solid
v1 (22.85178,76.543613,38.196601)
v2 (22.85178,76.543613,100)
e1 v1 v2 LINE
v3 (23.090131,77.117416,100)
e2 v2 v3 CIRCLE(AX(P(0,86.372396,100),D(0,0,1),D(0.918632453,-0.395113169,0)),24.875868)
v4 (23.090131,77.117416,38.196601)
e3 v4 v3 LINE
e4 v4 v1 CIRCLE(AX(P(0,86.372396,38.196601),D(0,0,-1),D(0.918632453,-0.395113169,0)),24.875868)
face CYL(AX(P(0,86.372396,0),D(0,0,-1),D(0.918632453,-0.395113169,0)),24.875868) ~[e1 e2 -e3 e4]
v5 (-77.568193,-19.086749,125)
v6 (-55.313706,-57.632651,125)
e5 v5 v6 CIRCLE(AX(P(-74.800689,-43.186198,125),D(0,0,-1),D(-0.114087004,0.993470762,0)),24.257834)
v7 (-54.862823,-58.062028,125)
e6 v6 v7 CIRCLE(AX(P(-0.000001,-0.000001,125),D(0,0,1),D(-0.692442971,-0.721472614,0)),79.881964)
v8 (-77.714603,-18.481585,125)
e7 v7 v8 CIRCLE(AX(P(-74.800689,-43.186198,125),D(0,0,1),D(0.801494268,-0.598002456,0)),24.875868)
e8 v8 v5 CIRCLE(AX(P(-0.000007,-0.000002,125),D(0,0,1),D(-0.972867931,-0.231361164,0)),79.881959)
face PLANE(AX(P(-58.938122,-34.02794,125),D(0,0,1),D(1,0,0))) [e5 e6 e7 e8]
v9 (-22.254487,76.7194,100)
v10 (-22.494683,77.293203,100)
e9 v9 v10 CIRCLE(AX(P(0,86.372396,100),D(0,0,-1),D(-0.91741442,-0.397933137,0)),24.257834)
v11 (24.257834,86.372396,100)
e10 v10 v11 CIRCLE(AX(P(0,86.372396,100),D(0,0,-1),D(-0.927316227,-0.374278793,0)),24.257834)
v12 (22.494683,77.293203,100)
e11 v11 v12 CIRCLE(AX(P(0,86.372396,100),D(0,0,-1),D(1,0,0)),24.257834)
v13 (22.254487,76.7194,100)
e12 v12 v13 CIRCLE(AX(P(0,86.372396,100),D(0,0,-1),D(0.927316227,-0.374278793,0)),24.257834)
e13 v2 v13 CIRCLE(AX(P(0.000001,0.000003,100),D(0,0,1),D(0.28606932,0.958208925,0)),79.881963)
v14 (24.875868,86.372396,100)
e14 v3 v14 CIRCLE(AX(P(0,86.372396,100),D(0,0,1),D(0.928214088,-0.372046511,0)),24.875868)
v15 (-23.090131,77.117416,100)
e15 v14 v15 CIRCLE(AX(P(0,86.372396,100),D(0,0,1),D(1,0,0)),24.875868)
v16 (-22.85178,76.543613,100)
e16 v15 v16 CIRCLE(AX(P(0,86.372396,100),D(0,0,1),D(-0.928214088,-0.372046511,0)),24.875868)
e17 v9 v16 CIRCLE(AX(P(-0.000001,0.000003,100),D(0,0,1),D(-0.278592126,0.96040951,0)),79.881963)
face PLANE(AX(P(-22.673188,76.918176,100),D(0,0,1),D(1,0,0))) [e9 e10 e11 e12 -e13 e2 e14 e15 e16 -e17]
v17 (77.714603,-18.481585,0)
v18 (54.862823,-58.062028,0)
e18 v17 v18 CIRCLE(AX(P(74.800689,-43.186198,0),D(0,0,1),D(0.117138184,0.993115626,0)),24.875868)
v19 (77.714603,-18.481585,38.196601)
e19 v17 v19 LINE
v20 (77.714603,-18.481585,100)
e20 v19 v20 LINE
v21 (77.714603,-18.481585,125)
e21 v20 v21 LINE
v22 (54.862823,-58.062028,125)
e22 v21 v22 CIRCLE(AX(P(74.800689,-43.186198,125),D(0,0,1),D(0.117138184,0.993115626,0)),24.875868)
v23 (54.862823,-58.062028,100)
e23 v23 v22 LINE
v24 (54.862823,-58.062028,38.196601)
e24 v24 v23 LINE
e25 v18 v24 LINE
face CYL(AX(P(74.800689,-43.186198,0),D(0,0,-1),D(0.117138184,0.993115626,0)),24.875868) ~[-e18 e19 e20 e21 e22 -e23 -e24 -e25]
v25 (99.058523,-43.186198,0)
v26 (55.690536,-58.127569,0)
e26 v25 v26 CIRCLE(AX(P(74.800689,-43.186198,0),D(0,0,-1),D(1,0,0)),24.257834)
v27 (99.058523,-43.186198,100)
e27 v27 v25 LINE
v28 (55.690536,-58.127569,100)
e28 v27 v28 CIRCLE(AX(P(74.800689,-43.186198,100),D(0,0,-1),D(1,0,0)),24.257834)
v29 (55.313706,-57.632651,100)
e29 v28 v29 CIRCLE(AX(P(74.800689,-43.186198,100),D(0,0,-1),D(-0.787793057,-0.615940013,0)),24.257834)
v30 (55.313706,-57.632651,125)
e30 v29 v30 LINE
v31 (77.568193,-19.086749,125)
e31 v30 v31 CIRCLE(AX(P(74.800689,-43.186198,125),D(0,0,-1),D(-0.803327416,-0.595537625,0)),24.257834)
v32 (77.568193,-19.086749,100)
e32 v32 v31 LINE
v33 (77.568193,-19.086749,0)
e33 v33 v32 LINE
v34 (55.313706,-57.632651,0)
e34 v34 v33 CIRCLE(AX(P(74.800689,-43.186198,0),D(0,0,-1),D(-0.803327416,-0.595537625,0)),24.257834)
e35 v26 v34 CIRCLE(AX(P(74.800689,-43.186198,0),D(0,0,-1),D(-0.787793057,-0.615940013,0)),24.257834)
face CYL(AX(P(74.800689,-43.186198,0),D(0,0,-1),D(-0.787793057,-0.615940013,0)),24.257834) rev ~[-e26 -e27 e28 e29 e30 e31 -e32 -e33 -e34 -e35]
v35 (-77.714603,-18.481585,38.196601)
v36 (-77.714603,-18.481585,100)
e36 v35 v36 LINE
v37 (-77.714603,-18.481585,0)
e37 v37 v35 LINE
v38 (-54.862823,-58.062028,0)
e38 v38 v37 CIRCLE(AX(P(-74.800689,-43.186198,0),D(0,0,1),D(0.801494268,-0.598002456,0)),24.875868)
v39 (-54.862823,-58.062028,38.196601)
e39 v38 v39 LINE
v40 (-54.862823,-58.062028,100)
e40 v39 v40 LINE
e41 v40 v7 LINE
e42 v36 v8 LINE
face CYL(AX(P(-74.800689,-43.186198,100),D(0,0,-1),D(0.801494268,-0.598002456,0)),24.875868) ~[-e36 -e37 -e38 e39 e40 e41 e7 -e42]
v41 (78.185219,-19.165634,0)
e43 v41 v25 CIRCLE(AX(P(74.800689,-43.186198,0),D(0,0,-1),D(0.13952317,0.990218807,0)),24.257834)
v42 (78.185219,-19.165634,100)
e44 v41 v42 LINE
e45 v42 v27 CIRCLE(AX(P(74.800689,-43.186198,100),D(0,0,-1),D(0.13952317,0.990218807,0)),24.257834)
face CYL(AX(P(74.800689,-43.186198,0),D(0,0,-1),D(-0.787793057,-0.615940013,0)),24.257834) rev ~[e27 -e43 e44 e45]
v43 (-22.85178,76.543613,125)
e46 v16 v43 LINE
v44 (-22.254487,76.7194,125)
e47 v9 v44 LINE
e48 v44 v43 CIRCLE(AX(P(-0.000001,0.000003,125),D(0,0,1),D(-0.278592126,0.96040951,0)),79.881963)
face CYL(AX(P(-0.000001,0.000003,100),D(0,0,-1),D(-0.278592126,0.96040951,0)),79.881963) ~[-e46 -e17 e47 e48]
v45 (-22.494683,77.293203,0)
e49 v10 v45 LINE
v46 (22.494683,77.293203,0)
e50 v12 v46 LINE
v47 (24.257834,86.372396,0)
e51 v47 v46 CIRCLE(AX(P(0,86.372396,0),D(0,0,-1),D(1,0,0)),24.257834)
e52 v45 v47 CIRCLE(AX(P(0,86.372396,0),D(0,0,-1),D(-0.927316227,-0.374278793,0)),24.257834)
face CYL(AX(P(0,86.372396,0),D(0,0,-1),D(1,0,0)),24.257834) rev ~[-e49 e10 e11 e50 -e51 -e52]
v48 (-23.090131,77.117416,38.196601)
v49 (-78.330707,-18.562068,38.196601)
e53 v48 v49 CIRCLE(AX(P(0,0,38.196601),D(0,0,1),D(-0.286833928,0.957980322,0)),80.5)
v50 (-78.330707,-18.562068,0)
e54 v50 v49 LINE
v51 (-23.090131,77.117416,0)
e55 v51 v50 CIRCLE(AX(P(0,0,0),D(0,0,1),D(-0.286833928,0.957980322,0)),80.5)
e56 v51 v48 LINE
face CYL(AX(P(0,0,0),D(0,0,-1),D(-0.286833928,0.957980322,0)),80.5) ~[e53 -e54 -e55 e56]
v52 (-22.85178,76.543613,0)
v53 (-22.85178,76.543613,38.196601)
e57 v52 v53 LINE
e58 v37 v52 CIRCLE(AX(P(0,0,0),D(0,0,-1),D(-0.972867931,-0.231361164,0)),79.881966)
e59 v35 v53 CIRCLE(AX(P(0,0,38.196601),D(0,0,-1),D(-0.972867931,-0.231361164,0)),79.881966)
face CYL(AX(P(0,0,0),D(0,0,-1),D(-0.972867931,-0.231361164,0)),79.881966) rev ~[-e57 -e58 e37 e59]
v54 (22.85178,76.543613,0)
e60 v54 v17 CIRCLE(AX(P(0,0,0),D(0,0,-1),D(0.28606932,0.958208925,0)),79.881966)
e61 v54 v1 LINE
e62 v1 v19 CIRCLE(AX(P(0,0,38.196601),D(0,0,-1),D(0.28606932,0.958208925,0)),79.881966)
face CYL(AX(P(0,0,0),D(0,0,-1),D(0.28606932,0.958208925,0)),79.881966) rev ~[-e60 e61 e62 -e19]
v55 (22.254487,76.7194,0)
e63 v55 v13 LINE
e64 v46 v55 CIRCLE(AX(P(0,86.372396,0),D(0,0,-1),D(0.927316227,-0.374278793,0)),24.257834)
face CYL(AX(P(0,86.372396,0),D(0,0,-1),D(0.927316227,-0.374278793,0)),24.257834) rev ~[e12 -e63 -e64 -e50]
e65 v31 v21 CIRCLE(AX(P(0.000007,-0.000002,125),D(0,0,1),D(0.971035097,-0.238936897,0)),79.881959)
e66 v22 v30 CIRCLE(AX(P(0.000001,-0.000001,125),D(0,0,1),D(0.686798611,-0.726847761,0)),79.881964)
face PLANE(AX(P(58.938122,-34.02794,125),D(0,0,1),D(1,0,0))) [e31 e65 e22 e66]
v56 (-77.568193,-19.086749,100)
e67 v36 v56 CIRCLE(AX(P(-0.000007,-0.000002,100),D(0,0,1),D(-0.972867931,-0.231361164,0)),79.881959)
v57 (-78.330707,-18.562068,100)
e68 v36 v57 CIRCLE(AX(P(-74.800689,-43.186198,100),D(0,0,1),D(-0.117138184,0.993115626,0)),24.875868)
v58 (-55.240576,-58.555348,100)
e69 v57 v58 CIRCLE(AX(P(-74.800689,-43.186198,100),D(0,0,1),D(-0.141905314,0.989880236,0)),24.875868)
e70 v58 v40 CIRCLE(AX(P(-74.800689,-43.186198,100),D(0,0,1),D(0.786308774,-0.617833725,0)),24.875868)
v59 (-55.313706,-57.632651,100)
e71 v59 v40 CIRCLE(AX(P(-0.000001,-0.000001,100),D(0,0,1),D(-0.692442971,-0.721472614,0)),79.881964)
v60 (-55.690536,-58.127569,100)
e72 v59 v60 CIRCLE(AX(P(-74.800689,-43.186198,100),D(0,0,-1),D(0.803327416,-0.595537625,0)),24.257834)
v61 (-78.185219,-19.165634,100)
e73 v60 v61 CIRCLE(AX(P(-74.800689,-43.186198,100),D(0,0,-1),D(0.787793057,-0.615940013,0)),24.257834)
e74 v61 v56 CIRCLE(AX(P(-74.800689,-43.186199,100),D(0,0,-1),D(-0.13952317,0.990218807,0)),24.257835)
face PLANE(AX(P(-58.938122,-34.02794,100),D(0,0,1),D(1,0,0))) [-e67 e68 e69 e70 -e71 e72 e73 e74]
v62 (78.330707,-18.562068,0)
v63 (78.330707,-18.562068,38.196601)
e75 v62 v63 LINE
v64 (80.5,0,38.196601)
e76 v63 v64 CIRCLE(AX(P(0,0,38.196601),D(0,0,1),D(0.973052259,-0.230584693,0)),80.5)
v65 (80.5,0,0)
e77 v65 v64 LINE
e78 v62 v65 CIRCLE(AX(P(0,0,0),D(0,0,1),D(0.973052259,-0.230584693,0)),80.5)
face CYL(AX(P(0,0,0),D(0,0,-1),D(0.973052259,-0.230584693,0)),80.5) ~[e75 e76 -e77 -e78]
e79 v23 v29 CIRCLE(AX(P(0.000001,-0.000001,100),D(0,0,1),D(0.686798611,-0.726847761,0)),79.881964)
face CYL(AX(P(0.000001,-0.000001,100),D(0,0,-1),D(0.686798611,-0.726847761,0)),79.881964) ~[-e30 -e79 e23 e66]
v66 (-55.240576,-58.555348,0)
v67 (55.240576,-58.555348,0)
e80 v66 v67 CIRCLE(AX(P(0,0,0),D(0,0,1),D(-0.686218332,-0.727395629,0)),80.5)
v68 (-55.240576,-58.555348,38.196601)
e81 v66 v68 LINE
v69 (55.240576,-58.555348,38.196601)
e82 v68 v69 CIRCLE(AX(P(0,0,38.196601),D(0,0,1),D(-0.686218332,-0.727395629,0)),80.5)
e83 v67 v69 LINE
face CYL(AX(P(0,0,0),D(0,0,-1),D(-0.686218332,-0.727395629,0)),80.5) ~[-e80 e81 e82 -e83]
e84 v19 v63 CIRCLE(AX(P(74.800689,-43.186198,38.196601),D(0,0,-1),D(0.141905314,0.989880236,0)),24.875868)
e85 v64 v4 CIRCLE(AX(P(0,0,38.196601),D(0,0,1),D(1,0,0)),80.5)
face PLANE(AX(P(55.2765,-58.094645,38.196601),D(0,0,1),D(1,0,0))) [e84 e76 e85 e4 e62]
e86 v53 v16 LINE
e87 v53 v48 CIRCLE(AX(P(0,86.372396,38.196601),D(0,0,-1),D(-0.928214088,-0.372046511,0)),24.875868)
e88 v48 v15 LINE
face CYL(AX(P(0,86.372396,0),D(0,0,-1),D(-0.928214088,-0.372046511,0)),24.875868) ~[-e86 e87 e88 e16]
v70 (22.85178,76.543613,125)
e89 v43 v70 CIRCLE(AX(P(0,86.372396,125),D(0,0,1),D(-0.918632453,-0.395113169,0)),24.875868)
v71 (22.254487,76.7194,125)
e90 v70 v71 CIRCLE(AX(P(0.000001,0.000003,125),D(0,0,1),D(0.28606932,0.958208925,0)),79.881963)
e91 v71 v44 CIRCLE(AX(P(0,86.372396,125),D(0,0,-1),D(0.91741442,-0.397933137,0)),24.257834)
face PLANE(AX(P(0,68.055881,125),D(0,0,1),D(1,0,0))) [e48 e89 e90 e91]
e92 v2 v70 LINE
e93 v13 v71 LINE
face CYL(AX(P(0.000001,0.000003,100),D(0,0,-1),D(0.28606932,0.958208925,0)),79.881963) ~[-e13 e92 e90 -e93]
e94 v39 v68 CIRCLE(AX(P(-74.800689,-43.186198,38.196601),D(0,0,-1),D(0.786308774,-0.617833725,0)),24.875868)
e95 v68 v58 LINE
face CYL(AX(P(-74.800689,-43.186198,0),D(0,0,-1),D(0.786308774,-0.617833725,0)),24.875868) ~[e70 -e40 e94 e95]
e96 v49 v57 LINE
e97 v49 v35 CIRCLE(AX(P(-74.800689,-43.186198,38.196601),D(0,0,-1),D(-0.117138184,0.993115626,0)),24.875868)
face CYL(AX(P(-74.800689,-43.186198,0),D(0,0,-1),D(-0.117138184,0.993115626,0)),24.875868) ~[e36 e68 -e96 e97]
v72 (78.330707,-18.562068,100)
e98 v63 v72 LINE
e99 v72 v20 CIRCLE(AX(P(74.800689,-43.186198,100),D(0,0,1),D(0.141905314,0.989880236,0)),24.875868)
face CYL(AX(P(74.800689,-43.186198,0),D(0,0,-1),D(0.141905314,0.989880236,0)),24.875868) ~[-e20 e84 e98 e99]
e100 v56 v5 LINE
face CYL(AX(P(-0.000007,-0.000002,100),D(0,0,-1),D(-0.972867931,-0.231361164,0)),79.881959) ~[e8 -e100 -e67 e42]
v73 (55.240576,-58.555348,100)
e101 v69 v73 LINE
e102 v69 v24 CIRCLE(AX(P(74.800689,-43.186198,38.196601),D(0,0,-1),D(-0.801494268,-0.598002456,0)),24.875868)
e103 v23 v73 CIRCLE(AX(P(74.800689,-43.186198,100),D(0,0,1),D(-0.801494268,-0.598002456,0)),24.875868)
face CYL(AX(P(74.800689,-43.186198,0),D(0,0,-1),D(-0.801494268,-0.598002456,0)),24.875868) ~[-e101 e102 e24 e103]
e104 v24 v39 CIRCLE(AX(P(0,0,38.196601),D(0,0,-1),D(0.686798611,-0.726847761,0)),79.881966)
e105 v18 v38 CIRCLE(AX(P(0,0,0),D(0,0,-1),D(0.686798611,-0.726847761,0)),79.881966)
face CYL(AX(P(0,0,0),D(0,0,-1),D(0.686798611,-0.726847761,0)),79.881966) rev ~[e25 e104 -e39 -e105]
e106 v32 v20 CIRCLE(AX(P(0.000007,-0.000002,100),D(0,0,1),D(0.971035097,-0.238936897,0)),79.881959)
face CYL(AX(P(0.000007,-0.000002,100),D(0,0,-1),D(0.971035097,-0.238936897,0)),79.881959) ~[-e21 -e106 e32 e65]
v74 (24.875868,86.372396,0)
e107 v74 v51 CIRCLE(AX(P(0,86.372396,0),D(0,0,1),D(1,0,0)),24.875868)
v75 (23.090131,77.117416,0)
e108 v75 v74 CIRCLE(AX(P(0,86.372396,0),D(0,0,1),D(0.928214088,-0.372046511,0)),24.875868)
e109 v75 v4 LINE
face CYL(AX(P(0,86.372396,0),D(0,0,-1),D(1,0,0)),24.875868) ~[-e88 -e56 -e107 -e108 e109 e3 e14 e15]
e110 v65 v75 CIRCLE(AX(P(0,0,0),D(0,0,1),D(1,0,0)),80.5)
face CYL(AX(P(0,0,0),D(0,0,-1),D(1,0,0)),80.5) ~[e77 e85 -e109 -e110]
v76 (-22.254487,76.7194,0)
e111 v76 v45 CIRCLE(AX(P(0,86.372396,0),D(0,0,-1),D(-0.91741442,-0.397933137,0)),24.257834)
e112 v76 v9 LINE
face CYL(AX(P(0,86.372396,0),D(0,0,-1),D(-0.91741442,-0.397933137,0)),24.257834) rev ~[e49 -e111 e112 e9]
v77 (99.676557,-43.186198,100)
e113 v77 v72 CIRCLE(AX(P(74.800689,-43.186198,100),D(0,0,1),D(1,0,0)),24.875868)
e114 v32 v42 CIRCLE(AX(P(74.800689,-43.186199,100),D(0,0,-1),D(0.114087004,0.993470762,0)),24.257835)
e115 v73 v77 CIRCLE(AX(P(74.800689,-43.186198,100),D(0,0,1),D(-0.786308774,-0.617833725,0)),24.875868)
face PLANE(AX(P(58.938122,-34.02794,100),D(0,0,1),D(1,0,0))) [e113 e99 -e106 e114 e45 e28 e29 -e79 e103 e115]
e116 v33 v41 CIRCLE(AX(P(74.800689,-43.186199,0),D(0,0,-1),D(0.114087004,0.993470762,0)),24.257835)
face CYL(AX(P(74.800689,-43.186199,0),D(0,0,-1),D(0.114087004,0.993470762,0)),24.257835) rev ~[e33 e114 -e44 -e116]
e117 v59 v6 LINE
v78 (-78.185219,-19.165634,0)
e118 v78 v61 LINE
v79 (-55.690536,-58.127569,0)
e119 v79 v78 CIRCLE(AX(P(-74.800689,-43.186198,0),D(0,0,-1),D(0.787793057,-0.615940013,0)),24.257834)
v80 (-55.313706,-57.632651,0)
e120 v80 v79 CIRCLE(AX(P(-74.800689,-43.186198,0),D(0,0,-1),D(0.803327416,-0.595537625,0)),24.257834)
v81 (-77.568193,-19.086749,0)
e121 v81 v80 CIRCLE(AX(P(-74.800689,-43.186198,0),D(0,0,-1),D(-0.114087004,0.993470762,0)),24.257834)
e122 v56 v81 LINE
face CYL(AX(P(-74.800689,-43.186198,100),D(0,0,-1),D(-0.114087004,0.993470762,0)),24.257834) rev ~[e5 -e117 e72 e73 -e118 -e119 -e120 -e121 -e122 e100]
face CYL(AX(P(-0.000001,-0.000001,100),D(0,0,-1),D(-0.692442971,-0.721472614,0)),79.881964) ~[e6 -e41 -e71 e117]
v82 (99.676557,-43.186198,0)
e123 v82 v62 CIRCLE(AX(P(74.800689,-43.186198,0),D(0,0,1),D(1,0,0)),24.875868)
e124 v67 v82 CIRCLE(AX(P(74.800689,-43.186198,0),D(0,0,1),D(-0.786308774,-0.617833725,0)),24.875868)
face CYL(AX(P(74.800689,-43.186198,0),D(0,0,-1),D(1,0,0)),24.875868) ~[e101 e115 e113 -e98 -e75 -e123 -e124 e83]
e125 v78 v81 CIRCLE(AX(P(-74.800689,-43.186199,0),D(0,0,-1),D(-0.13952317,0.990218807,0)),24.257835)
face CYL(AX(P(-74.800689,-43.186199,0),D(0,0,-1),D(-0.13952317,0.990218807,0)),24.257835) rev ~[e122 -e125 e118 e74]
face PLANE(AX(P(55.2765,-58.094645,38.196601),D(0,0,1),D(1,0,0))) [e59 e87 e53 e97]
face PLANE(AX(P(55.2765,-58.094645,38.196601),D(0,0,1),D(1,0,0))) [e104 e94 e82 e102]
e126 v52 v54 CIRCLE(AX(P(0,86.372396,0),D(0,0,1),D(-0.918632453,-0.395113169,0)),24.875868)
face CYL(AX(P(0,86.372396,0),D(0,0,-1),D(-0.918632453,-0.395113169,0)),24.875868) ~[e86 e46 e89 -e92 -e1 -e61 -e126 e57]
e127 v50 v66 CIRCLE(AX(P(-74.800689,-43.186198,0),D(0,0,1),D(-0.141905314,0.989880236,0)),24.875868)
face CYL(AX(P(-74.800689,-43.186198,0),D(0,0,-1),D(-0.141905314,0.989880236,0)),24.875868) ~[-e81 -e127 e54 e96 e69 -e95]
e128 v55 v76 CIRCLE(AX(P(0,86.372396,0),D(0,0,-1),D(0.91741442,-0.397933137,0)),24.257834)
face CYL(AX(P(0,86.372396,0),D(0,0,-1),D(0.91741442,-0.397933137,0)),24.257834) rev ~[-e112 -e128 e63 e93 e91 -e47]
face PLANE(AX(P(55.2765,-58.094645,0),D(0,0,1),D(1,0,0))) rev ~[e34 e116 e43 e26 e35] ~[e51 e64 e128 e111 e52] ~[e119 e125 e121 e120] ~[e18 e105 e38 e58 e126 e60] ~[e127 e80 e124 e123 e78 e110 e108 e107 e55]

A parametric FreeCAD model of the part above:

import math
import FreeCAD as App
import Part
import Sketcher
from FreeCAD import Vector

doc = App.newDocument("Part")
body = doc.addObject("PartDesign::Body", "Body")

sketch1 = doc.addObject("Sketcher::SketchObject", "Sketch")
body.addObject(sketch1)
sketch1.AttachmentSupport = (doc.XY_Plane, [""])
sketch1.MapMode = "FlatFace"
sketch1.addGeometry([
    Part.ArcOfCircle(Part.Circle(Vector(0, 0, 0), Vector(0, 0, 1), 80.5), math.radians(-133), math.radians(-47)),
    Part.ArcOfCircle(Part.Circle(Vector(74.8, -43.2, 0), Vector(0, 0, 1), 24.9), math.radians(-142), math.radians(0)),
    Part.ArcOfCircle(Part.Circle(Vector(74.8, -43.2, 0), Vector(0, 0, 1), 24.9), math.radians(0), math.radians(82)),
    Part.ArcOfCircle(Part.Circle(Vector(0, 0, 0), Vector(0, 0, 1), 80.5), math.radians(-13.33), math.radians(0)),
    Part.ArcOfCircle(Part.Circle(Vector(0, 0, 0), Vector(0, 0, 1), 80.5), math.radians(0), math.radians(73)),
    Part.ArcOfCircle(Part.Circle(Vector(0, 86.4, 0), Vector(0, 0, 1), 24.9), math.radians(-22), math.radians(0)),
    Part.ArcOfCircle(Part.Circle(Vector(0, 86.4, 0), Vector(0, 0, 1), 24.9), math.radians(0), math.radians(202)),
    Part.ArcOfCircle(Part.Circle(Vector(0, 0, 0), Vector(0, 0, 1), 80.5), math.radians(107), math.radians(193)),
    Part.ArcOfCircle(Part.Circle(Vector(-74.8, -43.2, 0), Vector(0, 0, 1), 24.9), math.radians(98), math.radians(322)),
    Part.ArcOfCircle(Part.Circle(Vector(74.8, -43.2, 0), Vector(0, 0, 1), 24.3), math.radians(-143.45), math.radians(-141.98)),
    Part.ArcOfCircle(Part.Circle(Vector(74.8, -43.2, 0), Vector(0, 0, 1), 24.3), math.radians(83), math.radians(217)),
    Part.ArcOfCircle(Part.Circle(Vector(74.8, -43.2, 0), Vector(0, 0, 1), 24.3), math.radians(81.98), math.radians(83.45)),
    Part.ArcOfCircle(Part.Circle(Vector(74.8, -43.2, 0), Vector(0, 0, 1), 24.3), math.radians(0), math.radians(82)),
    Part.ArcOfCircle(Part.Circle(Vector(74.8, -43.2, 0), Vector(0, 0, 1), 24.3), math.radians(-142), math.radians(0)),
    Part.ArcOfCircle(Part.Circle(Vector(0, 0, 0), Vector(0, 0, 1), 79.9), math.radians(-133), math.radians(-47)),
    Part.ArcOfCircle(Part.Circle(Vector(-74.8, -43.2, 0), Vector(0, 0, 1), 24.9), math.radians(-37), math.radians(97)),
    Part.ArcOfCircle(Part.Circle(Vector(0, 0, 0), Vector(0, 0, 1), 79.9), math.radians(107), math.radians(193)),
    Part.ArcOfCircle(Part.Circle(Vector(0, 86.4, 0), Vector(0, 0, 1), 24.9), math.radians(-157), math.radians(-23)),
    Part.ArcOfCircle(Part.Circle(Vector(0, 0, 0), Vector(0, 0, 1), 79.9), math.radians(-13), math.radians(73)),
    Part.ArcOfCircle(Part.Circle(Vector(74.8, -43.2, 0), Vector(0, 0, 1), 24.9), math.radians(83), math.radians(217)),
    Part.ArcOfCircle(Part.Circle(Vector(-74.8, -43.2, 0), Vector(0, 0, 1), 24.3), math.radians(-38.02), math.radians(-36.55)),
    Part.ArcOfCircle(Part.Circle(Vector(-74.8, -43.2, 0), Vector(0, 0, 1), 24.3), math.radians(98), math.radians(322)),
    Part.ArcOfCircle(Part.Circle(Vector(-74.8, -43.2, 0), Vector(0, 0, 1), 24.3), math.radians(96.55), math.radians(98.02)),
    Part.ArcOfCircle(Part.Circle(Vector(-74.8, -43.2, 0), Vector(0, 0, 1), 24.3), math.radians(-37), math.radians(97)),
    Part.ArcOfCircle(Part.Circle(Vector(0, 86.4, 0), Vector(0, 0, 1), 24.3), math.radians(-23.45), math.radians(-21.98)),
    Part.ArcOfCircle(Part.Circle(Vector(0, 86.4, 0), Vector(0, 0, 1), 24.3), math.radians(-157), math.radians(-23)),
    Part.ArcOfCircle(Part.Circle(Vector(0, 86.4, 0), Vector(0, 0, 1), 24.3), math.radians(-158.02), math.radians(-156.55)),
    Part.ArcOfCircle(Part.Circle(Vector(0, 86.4, 0), Vector(0, 0, 1), 24.3), math.radians(0), math.radians(202)),
    Part.ArcOfCircle(Part.Circle(Vector(0, 86.4, 0), Vector(0, 0, 1), 24.3), math.radians(-22), math.radians(0)),
], False)
sketch1.addConstraint([
    Sketcher.Constraint("Coincident", 0, 2, 1, 1),
    Sketcher.Constraint("Tangent", 1, 2, 2, 1),
    Sketcher.Constraint("Coincident", 2, 2, 3, 1),
    Sketcher.Constraint("Tangent", 3, 2, 4, 1),
    Sketcher.Constraint("Coincident", 4, 2, 5, 1),
    Sketcher.Constraint("Tangent", 5, 2, 6, 1),
    Sketcher.Constraint("Coincident", 6, 2, 7, 1),
    Sketcher.Constraint("Coincident", 7, 2, 8, 1),
    Sketcher.Constraint("Coincident", 8, 2, 0, 1),
    Sketcher.Constraint("Tangent", 9, 1, 10, 2),
    Sketcher.Constraint("Tangent", 10, 1, 11, 2),
    Sketcher.Constraint("Tangent", 11, 1, 12, 2),
    Sketcher.Constraint("Tangent", 12, 1, 13, 2),
    Sketcher.Constraint("Tangent", 13, 1, 9, 2),
    Sketcher.Constraint("Coincident", 14, 1, 15, 1),
    Sketcher.Constraint("Coincident", 15, 2, 16, 2),
    Sketcher.Constraint("Coincident", 16, 1, 17, 1),
    Sketcher.Constraint("Coincident", 17, 2, 18, 2),
    Sketcher.Constraint("Coincident", 18, 1, 19, 1),
    Sketcher.Constraint("Coincident", 19, 2, 14, 2),
    Sketcher.Constraint("Tangent", 20, 1, 21, 2),
    Sketcher.Constraint("Tangent", 21, 1, 22, 2),
    Sketcher.Constraint("Tangent", 22, 1, 23, 2),
    Sketcher.Constraint("Coincident", 23, 1, 20, 2),
    Sketcher.Constraint("Tangent", 24, 1, 25, 2),
    Sketcher.Constraint("Tangent", 25, 1, 26, 2),
    Sketcher.Constraint("Tangent", 26, 1, 27, 2),
    Sketcher.Constraint("Tangent", 27, 1, 28, 2),
    Sketcher.Constraint("Tangent", 28, 1, 24, 2),
    Sketcher.Constraint("Coincident", 0, 3, -1, 1),
    Sketcher.Constraint("Coincident", 3, 3, -1, 1),
    Sketcher.Constraint("Coincident", 7, 3, -1, 1),
    Sketcher.Constraint("Coincident", 14, 3, -1, 1),
    Sketcher.Constraint("Coincident", 16, 3, -1, 1),
    Sketcher.Constraint("Coincident", 18, 3, -1, 1),
    Sketcher.Constraint("Coincident", 9, 3, 1, 3),
    Sketcher.Constraint("Coincident", 11, 3, 1, 3),
    Sketcher.Constraint("Coincident", 15, 3, 8, 3),
    Sketcher.Constraint("Coincident", 17, 3, 5, 3),
    Sketcher.Constraint("Coincident", 19, 3, 1, 3),
    Sketcher.Constraint("Coincident", 20, 3, 8, 3),
    Sketcher.Constraint("Coincident", 22, 3, 8, 3),
    Sketcher.Constraint("Coincident", 24, 3, 5, 3),
    Sketcher.Constraint("Coincident", 26, 3, 5, 3),
    Sketcher.Constraint("Equal", 1, 2),
    Sketcher.Constraint("Equal", 0, 3),
    Sketcher.Constraint("Equal", 3, 4),
    Sketcher.Constraint("Equal", 2, 5),
    Sketcher.Constraint("Equal", 5, 6),
    Sketcher.Constraint("Equal", 4, 7),
    Sketcher.Constraint("Equal", 6, 8),
    Sketcher.Constraint("Equal", 8, 15),
    Sketcher.Constraint("Equal", 14, 16),
    Sketcher.Constraint("Equal", 15, 17),
    Sketcher.Constraint("Equal", 16, 18),
    Sketcher.Constraint("Equal", 17, 19),
    Sketcher.Constraint("Equal", 13, 20),
    Sketcher.Constraint("Equal", 23, 24),
    Sketcher.Constraint("Symmetric", 1, 3, 8, 3, -2),
    Sketcher.Constraint("Symmetric", 24, 1, 25, 1, -2),
    Sketcher.Constraint("PointOnObject", 3, 2, -1),
    Sketcher.Constraint("Horizontal", 23, 3, 1, 2),
    Sketcher.Constraint("Horizontal", 28, 3, 5, 2),
    Sketcher.Constraint("Horizontal", 1, 2, 12, 1),
    Sketcher.Constraint("Horizontal", 13, 1, 20, 1),
    Sketcher.Constraint("Horizontal", 11, 1, 21, 1),
    Sketcher.Constraint("Horizontal", 10, 1, 22, 1),
    Sketcher.Constraint("Horizontal", 9, 1, 23, 1),
    Sketcher.Constraint("Horizontal", 5, 2, 27, 1),
    Sketcher.Constraint("Horizontal", 26, 1, 28, 1),
    Sketcher.Constraint("Radius", 0, 80.5),
    Sketcher.Constraint("Radius", 1, 24.875868),
    Sketcher.Constraint("Radius", 9, 24.257834),
    Sketcher.Constraint("Radius", 14, 79.881966),
    Sketcher.Constraint("DistanceY", 11, 3, -1, 1, 43.186199),
    Sketcher.Constraint("DistanceY", -1, 1, 24, 1, 76.7194),
    Sketcher.Constraint("DistanceX", -1, 1, 1, 3, 74.800689),
    Sketcher.Constraint("DistanceX", 6, 2, -1, 1, 23.090131),
    Sketcher.Constraint("DistanceY", 9, 1, -1, 1, 57.632651),
    Sketcher.Constraint("DistanceY", 10, 1, -1, 1, 19.086749),
    Sketcher.Constraint("DistanceX", -1, 1, 11, 1, 78.185219),
    Sketcher.Constraint("DistanceY", 13, 1, -1, 1, 58.127569),
    Sketcher.Constraint("DistanceX", 6, 2, 26, 1, 0.595448),
])
pad1 = doc.addObject("PartDesign::Pad", "Pad")
body.addObject(pad1)
pad1.Profile = sketch1
pad1.Length = 38.196601

sketch2 = doc.addObject("Sketcher::SketchObject", "Sketch001")
body.addObject(sketch2)
sketch2.AttachmentSupport = (doc.XY_Plane, [""])
sketch2.MapMode = "FlatFace"
sketch2.addGeometry([
    Part.ArcOfCircle(Part.Circle(Vector(-74.8, -43.2, 0), Vector(0, 0, 1), 24.9), math.radians(-38.16), math.radians(-36.73)),
    Part.ArcOfCircle(Part.Circle(Vector(-74.8, -43.2, 0), Vector(0, 0, 1), 24.9), math.radians(-37), math.radians(97)),
    Part.ArcOfCircle(Part.Circle(Vector(-74.8, -43.2, 0), Vector(0, 0, 1), 24.9), math.radians(96.73), math.radians(98.16)),
    Part.ArcOfCircle(Part.Circle(Vector(-74.8, -43.2, 0), Vector(0, 0, 1), 24.9), math.radians(98), math.radians(322)),
    Part.ArcOfCircle(Part.Circle(Vector(-74.8, -43.2, 0), Vector(0, 0, 1), 24.3), math.radians(-37), math.radians(97)),
    Part.ArcOfCircle(Part.Circle(Vector(-74.8, -43.2, 0), Vector(0, 0, 1), 24.3), math.radians(-38.02), math.radians(-36.55)),
    Part.ArcOfCircle(Part.Circle(Vector(-74.8, -43.2, 0), Vector(0, 0, 1), 24.3), math.radians(98), math.radians(322)),
    Part.ArcOfCircle(Part.Circle(Vector(-74.8, -43.2, 0), Vector(0, 0, 1), 24.3), math.radians(96.55), math.radians(98.02)),
    Part.ArcOfCircle(Part.Circle(Vector(74.8, -43.2, 0), Vector(0, 0, 1), 24.9), math.radians(83), math.radians(217)),
    Part.ArcOfCircle(Part.Circle(Vector(74.8, -43.2, 0), Vector(0, 0, 1), 24.9), math.radians(-143.27), math.radians(-141.84)),
    Part.ArcOfCircle(Part.Circle(Vector(74.8, -43.2, 0), Vector(0, 0, 1), 24.9), math.radians(-142), math.radians(0)),
    Part.ArcOfCircle(Part.Circle(Vector(74.8, -43.2, 0), Vector(0, 0, 1), 24.9), math.radians(0), math.radians(82)),
    Part.ArcOfCircle(Part.Circle(Vector(74.8, -43.2, 0), Vector(0, 0, 1), 24.9), math.radians(81.84), math.radians(83.27)),
    Part.ArcOfCircle(Part.Circle(Vector(74.8, -43.2, 0), Vector(0, 0, 1), 24.3), math.radians(-143.45), math.radians(-141.98)),
    Part.ArcOfCircle(Part.Circle(Vector(74.8, -43.2, 0), Vector(0, 0, 1), 24.3), math.radians(83), math.radians(217)),
    Part.ArcOfCircle(Part.Circle(Vector(74.8, -43.2, 0), Vector(0, 0, 1), 24.3), math.radians(81.98), math.radians(83.45)),
    Part.ArcOfCircle(Part.Circle(Vector(74.8, -43.2, 0), Vector(0, 0, 1), 24.3), math.radians(0), math.radians(82)),
    Part.ArcOfCircle(Part.Circle(Vector(74.8, -43.2, 0), Vector(0, 0, 1), 24.3), math.radians(-142), math.radians(0)),
    Part.ArcOfCircle(Part.Circle(Vector(0, 86.4, 0), Vector(0, 0, 1), 24.9), math.radians(-158.16), math.radians(-156.73)),
    Part.ArcOfCircle(Part.Circle(Vector(0, 86.4, 0), Vector(0, 0, 1), 24.9), math.radians(-157), math.radians(-23)),
    Part.ArcOfCircle(Part.Circle(Vector(0, 86.4, 0), Vector(0, 0, 1), 24.9), math.radians(-23.27), math.radians(-21.84)),
    Part.ArcOfCircle(Part.Circle(Vector(0, 86.4, 0), Vector(0, 0, 1), 24.9), math.radians(-22), math.radians(0)),
    Part.ArcOfCircle(Part.Circle(Vector(0, 86.4, 0), Vector(0, 0, 1), 24.9), math.radians(0), math.radians(202)),
    Part.ArcOfCircle(Part.Circle(Vector(0, 86.4, 0), Vector(0, 0, 1), 24.3), math.radians(-158.02), math.radians(-156.55)),
    Part.ArcOfCircle(Part.Circle(Vector(0, 86.4, 0), Vector(0, 0, 1), 24.3), math.radians(0), math.radians(202)),
    Part.ArcOfCircle(Part.Circle(Vector(0, 86.4, 0), Vector(0, 0, 1), 24.3), math.radians(-22), math.radians(0)),
    Part.ArcOfCircle(Part.Circle(Vector(0, 86.4, 0), Vector(0, 0, 1), 24.3), math.radians(-23.45), math.radians(-21.98)),
    Part.ArcOfCircle(Part.Circle(Vector(0, 86.4, 0), Vector(0, 0, 1), 24.3), math.radians(-157), math.radians(-23)),
], False)
sketch2.addConstraint([
    Sketcher.Constraint("Tangent", 0, 2, 1, 1),
    Sketcher.Constraint("Tangent", 1, 2, 2, 1),
    Sketcher.Constraint("Tangent", 2, 2, 3, 1),
    Sketcher.Constraint("Coincident", 3, 2, 0, 1),
    Sketcher.Constraint("Tangent", 4, 1, 5, 2),
    Sketcher.Constraint("Tangent", 5, 1, 6, 2),
    Sketcher.Constraint("Tangent", 6, 1, 7, 2),
    Sketcher.Constraint("Coincident", 7, 1, 4, 2),
    Sketcher.Constraint("Tangent", 8, 2, 9, 1),
    Sketcher.Constraint("Tangent", 9, 2, 10, 1),
    Sketcher.Constraint("Tangent", 10, 2, 11, 1),
    Sketcher.Constraint("Tangent", 11, 2, 12, 1),
    Sketcher.Constraint("Tangent", 12, 2, 8, 1),
    Sketcher.Constraint("Tangent", 13, 1, 14, 2),
    Sketcher.Constraint("Tangent", 14, 1, 15, 2),
    Sketcher.Constraint("Tangent", 15, 1, 16, 2),
    Sketcher.Constraint("Tangent", 16, 1, 17, 2),
    Sketcher.Constraint("Tangent", 17, 1, 13, 2),
    Sketcher.Constraint("Tangent", 18, 2, 19, 1),
    Sketcher.Constraint("Tangent", 19, 2, 20, 1),
    Sketcher.Constraint("Tangent", 20, 2, 21, 1),
    Sketcher.Constraint("Tangent", 21, 2, 22, 1),
    Sketcher.Constraint("Tangent", 22, 2, 18, 1),
    Sketcher.Constraint("Tangent", 23, 1, 24, 2),
    Sketcher.Constraint("Tangent", 24, 1, 25, 2),
    Sketcher.Constraint("Tangent", 25, 1, 26, 2),
    Sketcher.Constraint("Tangent", 26, 1, 27, 2),
    Sketcher.Constraint("Tangent", 27, 1, 23, 2),
    Sketcher.Constraint("Coincident", 2, 3, 0, 3),
    Sketcher.Constraint("Coincident", 4, 3, 0, 3),
    Sketcher.Constraint("Coincident", 7, 3, 0, 3),
    Sketcher.Constraint("Coincident", 10, 3, 8, 3),
    Sketcher.Constraint("Coincident", 13, 3, 8, 3),
    Sketcher.Constraint("Coincident", 15, 3, 8, 3),
    Sketcher.Constraint("Coincident", 20, 3, 18, 3),
    Sketcher.Constraint("Coincident", 23, 3, 18, 3),
    Sketcher.Constraint("Coincident", 25, 3, 18, 3),
    Sketcher.Constraint("Equal", 3, 8),
    Sketcher.Constraint("Equal", 7, 13),
    Sketcher.Constraint("Equal", 12, 18),
    Sketcher.Constraint("Equal", 17, 23),
    Sketcher.Constraint("Symmetric", 0, 3, 8, 3, -2),
    Sketcher.Constraint("Symmetric", 18, 2, 19, 2, -2),
    Sketcher.Constraint("Horizontal", 0, 2, 8, 2),
    Sketcher.Constraint("Horizontal", 3, 2, 9, 2),
    Sketcher.Constraint("Horizontal", 17, 3, 10, 2),
    Sketcher.Constraint("Horizontal", 2, 2, 11, 2),
    Sketcher.Constraint("Horizontal", 1, 2, 12, 2),
    Sketcher.Constraint("Horizontal", 4, 1, 13, 1),
    Sketcher.Constraint("Horizontal", 7, 1, 14, 1),
    Sketcher.Constraint("Horizontal", 6, 1, 15, 1),
    Sketcher.Constraint("Horizontal", 10, 2, 16, 1),
    Sketcher.Constraint("Horizontal", 5, 1, 17, 1),
    Sketcher.Constraint("Horizontal", 27, 3, 21, 2),
    Sketcher.Constraint("Horizontal", 20, 2, 22, 2),
    Sketcher.Constraint("Horizontal", 21, 2, 24, 1),
    Sketcher.Constraint("Horizontal", 23, 1, 25, 1),
    Sketcher.Constraint("Horizontal", 26, 1, 27, 1),
    Sketcher.Constraint("Radius", 0, 24.875868),
    Sketcher.Constraint("Radius", 4, 24.257834),
    Sketcher.Constraint("DistanceY", 7, 3, -1, 1, 43.186199),
    Sketcher.Constraint("DistanceY", -1, 1, 26, 1, 76.7194),
    Sketcher.Constraint("DistanceX", 0, 3, -1, 1, 74.800689),
    Sketcher.Constraint("DistanceY", 0, 2, -1, 1, 58.062028),
    Sketcher.Constraint("DistanceY", 3, 2, -1, 1, 58.555348),
    Sketcher.Constraint("DistanceY", 4, 1, -1, 1, 57.632651),
    Sketcher.Constraint("DistanceY", 5, 1, -1, 1, 58.127569),
    Sketcher.Constraint("DistanceX", 6, 1, -1, 1, 78.185219),
    Sketcher.Constraint("DistanceY", 7, 1, -1, 1, 19.086749),
    Sketcher.Constraint("DistanceX", 18, 2, -1, 1, 22.85178),
    Sketcher.Constraint("DistanceX", -1, 1, 20, 2, 23.090131),
    Sketcher.Constraint("DistanceY", 0, 3, 2, 2, 24.62413),
    Sketcher.Constraint("DistanceY", 6, 1, 1, 2, 0.68405),
    Sketcher.Constraint("DistanceX", 22, 2, 23, 1, 0.595448),
    Sketcher.Constraint("DistanceX", 26, 1, 21, 2, 2.621381),
])
pad2 = doc.addObject("PartDesign::Pad", "Pad001")
body.addObject(pad2)
pad2.Profile = sketch2
pad2.Length = 100

sketch3 = doc.addObject("Sketcher::SketchObject", "Sketch002")
body.addObject(sketch3)
sketch3.AttachmentSupport = (doc.XY_Plane, [""])
sketch3.MapMode = "FlatFace"
sketch3.AttachmentOffset = App.Placement(Vector(0, 0, 100), App.Rotation())
sketch3.addGeometry([
    Part.ArcOfCircle(Part.Circle(Vector(0, 0, 0), Vector(0, 0, 1), 79.9), math.radians(-166.62), math.radians(-166.18)),
    Part.ArcOfCircle(Part.Circle(Vector(-74.8, -43.2, 0), Vector(0, 0, 1), 24.3), math.radians(-37), math.radians(97)),
    Part.ArcOfCircle(Part.Circle(Vector(0, 0, 0), Vector(0, 0, 1), 79.9), math.radians(-133.82), math.radians(-133.38)),
    Part.ArcOfCircle(Part.Circle(Vector(-74.8, -43.2, 0), Vector(0, 0, 1), 24.9), math.radians(-37), math.radians(97)),
    Part.ArcOfCircle(Part.Circle(Vector(0, 0, 0), Vector(0, 0, 1), 79.9), math.radians(106.18), math.radians(106.62)),
    Part.ArcOfCircle(Part.Circle(Vector(0, 86.4, 0), Vector(0, 0, 1), 24.9), math.radians(-157), math.radians(-23)),
    Part.ArcOfCircle(Part.Circle(Vector(0, 0, 0), Vector(0, 0, 1), 79.9), math.radians(73.38), math.radians(73.82)),
    Part.ArcOfCircle(Part.Circle(Vector(0, 86.4, 0), Vector(0, 0, 1), 24.3), math.radians(-157), math.radians(-23)),
    Part.ArcOfCircle(Part.Circle(Vector(0, 0, 0), Vector(0, 0, 1), 79.9), math.radians(-13.82), math.radians(-13.38)),
    Part.ArcOfCircle(Part.Circle(Vector(74.8, -43.2, 0), Vector(0, 0, 1), 24.9), math.radians(83), math.radians(217)),
    Part.ArcOfCircle(Part.Circle(Vector(0, 0, 0), Vector(0, 0, 1), 79.9), math.radians(-46.62), math.radians(-46.18)),
    Part.ArcOfCircle(Part.Circle(Vector(74.8, -43.2, 0), Vector(0, 0, 1), 24.3), math.radians(83), math.radians(217)),
], False)
sketch3.addConstraint([
    Sketcher.Constraint("Coincident", 0, 2, 1, 2),
    Sketcher.Constraint("Coincident", 1, 1, 2, 1),
    Sketcher.Constraint("Coincident", 2, 2, 3, 1),
    Sketcher.Constraint("Coincident", 3, 2, 0, 1),
    Sketcher.Constraint("Coincident", 4, 2, 5, 1),
    Sketcher.Constraint("Coincident", 5, 2, 6, 1),
    Sketcher.Constraint("Coincident", 6, 2, 7, 2),
    Sketcher.Constraint("Coincident", 7, 1, 4, 1),
    Sketcher.Constraint("Coincident", 8, 2, 9, 1),
    Sketcher.Constraint("Coincident", 9, 2, 10, 1),
    Sketcher.Constraint("Coincident", 10, 2, 11, 2),
    Sketcher.Constraint("Coincident", 11, 1, 8, 1),
    Sketcher.Constraint("Coincident", 0, 3, -1, 1),
    Sketcher.Constraint("Coincident", 2, 3, -1, 1),
    Sketcher.Constraint("Coincident", 4, 3, -1, 1),
    Sketcher.Constraint("Coincident", 6, 3, -1, 1),
    Sketcher.Constraint("Coincident", 8, 3, -1, 1),
    Sketcher.Constraint("Coincident", 10, 3, -1, 1),
    Sketcher.Constraint("Coincident", 3, 3, 1, 3),
    Sketcher.Constraint("Coincident", 7, 3, 5, 3),
    Sketcher.Constraint("Coincident", 11, 3, 9, 3),
    Sketcher.Constraint("Equal", 2, 4),
    Sketcher.Constraint("Equal", 3, 5),
    Sketcher.Constraint("Equal", 4, 6),
    Sketcher.Constraint("Equal", 1, 7),
    Sketcher.Constraint("Equal", 0, 8),
    Sketcher.Constraint("Equal", 5, 9),
    Sketcher.Constraint("Equal", 6, 10),
    Sketcher.Constraint("Equal", 7, 11),
    Sketcher.Constraint("Symmetric", 1, 3, 9, 3, -2),
    Sketcher.Constraint("PointOnObject", 5, 3, -2),
    Sketcher.Constraint("Radius", 0, 79.881959),
    Sketcher.Constraint("Radius", 3, 24.875868),
    Sketcher.Constraint("Radius", 1, 24.257834),
    Sketcher.Constraint("Radius", 2, 79.881964),
    Sketcher.Constraint("DistanceY", -1, 1, 6, 2, 76.7194),
    Sketcher.Constraint("DistanceY", 1, 3, 4, 3, 43.1862),
    Sketcher.Constraint("DistanceY", 1, 1, 0, 2, 38.545902),
])
pad3 = doc.addObject("PartDesign::Pad", "Pad002")
body.addObject(pad3)
pad3.Profile = sketch3
pad3.Length = 25

doc.recompute()
